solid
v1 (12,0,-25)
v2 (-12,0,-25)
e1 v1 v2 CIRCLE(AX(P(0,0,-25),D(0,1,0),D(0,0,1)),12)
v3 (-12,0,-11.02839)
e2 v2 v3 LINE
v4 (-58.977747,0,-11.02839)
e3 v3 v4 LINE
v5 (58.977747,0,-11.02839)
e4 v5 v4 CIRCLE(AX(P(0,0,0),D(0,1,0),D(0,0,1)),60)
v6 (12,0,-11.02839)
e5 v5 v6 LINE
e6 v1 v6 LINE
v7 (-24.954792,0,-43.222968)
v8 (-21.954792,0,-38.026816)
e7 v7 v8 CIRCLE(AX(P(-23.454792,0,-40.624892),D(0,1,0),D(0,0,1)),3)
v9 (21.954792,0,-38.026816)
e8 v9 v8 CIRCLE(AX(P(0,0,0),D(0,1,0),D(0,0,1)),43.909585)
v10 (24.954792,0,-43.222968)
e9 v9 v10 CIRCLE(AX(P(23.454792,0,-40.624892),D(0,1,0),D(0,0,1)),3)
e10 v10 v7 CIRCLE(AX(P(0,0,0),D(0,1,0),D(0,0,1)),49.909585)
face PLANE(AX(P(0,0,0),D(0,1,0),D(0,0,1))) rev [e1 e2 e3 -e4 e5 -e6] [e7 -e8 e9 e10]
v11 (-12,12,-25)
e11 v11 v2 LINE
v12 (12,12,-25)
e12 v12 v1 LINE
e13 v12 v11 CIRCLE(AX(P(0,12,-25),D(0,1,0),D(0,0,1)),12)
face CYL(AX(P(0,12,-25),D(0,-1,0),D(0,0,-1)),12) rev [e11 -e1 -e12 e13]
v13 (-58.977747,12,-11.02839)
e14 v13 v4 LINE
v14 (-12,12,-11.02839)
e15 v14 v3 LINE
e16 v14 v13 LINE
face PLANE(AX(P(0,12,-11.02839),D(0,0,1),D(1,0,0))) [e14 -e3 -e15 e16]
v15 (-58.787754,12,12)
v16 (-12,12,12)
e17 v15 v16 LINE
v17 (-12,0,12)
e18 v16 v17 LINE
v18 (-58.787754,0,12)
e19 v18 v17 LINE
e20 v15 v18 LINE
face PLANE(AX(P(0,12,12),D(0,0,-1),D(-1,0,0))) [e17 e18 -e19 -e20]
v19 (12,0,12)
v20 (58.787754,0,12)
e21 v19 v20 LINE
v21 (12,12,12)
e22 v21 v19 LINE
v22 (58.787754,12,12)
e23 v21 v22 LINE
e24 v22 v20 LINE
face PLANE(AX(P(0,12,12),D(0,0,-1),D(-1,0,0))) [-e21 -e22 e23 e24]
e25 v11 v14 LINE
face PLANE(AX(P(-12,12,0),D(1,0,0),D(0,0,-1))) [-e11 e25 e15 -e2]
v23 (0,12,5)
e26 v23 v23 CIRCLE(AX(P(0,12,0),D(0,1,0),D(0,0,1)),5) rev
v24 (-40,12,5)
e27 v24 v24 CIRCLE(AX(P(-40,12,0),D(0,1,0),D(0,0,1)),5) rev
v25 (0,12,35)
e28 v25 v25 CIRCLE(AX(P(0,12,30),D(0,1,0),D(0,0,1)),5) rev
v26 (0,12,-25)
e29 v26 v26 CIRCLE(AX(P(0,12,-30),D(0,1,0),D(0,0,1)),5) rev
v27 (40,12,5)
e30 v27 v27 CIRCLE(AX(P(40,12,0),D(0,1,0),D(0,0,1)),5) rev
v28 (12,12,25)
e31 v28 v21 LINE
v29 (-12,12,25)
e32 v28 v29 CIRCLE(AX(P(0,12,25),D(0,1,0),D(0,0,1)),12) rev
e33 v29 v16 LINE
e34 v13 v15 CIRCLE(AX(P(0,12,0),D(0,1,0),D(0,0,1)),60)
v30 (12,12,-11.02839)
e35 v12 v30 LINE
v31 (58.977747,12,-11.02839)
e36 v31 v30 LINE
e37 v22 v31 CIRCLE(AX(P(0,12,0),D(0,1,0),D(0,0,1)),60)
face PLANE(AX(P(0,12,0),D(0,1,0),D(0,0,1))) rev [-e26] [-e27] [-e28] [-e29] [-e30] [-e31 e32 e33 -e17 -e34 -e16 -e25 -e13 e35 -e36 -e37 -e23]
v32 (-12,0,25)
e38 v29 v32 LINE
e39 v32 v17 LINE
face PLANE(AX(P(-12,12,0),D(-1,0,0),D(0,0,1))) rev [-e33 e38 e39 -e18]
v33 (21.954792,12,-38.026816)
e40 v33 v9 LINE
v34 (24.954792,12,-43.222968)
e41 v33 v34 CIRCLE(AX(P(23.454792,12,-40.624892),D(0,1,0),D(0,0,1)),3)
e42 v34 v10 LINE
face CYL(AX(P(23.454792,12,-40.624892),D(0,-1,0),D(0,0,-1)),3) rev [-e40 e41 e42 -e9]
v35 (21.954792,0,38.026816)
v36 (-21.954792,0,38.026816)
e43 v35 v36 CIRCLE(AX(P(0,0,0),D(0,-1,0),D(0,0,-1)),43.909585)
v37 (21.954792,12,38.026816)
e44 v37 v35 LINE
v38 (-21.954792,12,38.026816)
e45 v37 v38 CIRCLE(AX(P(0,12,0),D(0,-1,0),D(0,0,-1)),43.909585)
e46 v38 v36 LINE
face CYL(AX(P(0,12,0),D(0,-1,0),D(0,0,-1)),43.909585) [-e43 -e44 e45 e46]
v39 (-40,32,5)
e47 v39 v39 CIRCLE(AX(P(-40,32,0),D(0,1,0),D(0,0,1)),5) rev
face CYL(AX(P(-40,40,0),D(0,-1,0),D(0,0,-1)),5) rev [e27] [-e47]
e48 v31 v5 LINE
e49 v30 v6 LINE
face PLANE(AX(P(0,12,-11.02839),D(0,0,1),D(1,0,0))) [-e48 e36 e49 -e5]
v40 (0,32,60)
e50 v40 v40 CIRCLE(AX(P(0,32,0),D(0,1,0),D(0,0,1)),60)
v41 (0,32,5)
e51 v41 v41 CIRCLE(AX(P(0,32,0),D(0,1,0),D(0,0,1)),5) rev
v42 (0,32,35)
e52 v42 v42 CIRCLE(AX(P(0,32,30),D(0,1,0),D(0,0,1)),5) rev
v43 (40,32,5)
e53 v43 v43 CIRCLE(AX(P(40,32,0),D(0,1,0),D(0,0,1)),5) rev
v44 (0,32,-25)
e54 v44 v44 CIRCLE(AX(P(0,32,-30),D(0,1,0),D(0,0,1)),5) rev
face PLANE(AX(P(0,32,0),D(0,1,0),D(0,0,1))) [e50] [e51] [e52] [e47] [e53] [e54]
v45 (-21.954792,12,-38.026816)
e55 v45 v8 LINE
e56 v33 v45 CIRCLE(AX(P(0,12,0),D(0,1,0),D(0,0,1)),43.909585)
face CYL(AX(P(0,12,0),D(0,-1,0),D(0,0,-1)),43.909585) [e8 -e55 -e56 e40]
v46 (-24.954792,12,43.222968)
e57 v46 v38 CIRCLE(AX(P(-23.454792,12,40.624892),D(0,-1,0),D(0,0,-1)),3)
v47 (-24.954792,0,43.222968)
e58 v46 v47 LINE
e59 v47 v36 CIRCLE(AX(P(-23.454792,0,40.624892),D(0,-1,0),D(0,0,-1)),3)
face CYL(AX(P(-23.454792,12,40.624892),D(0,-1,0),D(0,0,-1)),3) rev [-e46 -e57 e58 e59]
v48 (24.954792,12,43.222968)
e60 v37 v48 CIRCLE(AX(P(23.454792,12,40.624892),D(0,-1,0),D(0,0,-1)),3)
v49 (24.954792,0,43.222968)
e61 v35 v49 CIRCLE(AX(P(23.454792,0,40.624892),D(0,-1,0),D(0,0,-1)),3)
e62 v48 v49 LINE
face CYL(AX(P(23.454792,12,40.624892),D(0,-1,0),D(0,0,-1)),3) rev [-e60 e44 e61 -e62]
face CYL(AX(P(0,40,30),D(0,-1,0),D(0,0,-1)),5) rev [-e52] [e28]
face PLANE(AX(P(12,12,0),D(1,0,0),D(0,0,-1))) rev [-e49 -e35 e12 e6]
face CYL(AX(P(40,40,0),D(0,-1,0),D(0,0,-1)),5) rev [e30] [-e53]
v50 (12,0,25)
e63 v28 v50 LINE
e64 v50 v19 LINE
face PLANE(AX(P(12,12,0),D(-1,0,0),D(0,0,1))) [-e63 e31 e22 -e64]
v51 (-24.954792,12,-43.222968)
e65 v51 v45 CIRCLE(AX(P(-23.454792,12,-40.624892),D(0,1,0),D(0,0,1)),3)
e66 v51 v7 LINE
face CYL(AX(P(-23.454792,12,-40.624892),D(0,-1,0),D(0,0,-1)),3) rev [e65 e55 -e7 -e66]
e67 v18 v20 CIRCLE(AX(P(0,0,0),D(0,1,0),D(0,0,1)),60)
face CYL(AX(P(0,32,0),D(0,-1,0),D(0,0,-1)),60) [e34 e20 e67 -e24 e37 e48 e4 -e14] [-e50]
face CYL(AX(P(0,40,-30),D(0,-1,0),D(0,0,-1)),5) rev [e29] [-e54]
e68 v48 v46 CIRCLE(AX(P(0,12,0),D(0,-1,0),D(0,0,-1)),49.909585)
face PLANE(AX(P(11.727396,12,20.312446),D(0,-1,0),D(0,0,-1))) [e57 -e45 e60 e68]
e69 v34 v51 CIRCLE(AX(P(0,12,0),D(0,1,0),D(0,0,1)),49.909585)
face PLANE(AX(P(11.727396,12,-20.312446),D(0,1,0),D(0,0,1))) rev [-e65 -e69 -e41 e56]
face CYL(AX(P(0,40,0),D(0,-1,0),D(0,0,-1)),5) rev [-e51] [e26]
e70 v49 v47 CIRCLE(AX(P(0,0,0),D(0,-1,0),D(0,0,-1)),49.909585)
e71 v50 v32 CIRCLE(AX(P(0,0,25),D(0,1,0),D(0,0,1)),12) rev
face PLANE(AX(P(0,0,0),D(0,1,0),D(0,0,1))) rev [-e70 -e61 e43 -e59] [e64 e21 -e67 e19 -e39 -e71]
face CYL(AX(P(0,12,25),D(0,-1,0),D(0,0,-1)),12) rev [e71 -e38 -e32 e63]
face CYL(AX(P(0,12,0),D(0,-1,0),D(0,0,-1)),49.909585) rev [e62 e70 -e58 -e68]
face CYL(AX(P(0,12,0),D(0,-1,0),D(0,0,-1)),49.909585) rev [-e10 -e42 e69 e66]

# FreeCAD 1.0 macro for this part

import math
import FreeCAD as App
import Part
import Sketcher

V = App.Vector

doc = App.newDocument("Part")
params = doc.addObject("Spreadsheet::Sheet", "Params")
for row, (alias, value) in enumerate([
    ("sketch1_diameter", "120 mm"),
    ("pad1_length", "32 mm"),
    ("sketch2_radius", "3 mm"),
    ("pocket1_length", "12 mm"),
    ("sketch3_radius", "3 mm"),
    ("pocket2_length", "12 mm"),
    ("sketch4_diameter", "10 mm"),
    ("sketch4_radius", "60 mm"),
    ("sketch4_radius2", "12 mm"),
    ("sketch4_height", "13 mm"),
    ("pocket3_length", "12 mm"),
    ("sketch5_diameter", "10 mm"),
    ("pocket4_length", "40 mm"),
    ("sketch6_diameter", "10 mm"),
    ("pocket5_length", "40 mm"),
    ("sketch7_diameter", "10 mm"),
    ("pocket6_length", "40 mm"),
    ("sketch8_diameter", "10 mm"),
    ("pocket7_length", "40 mm"),
    ("sketch9_diameter", "10 mm"),
    ("pocket8_length", "40 mm"),
], start=1):
    params.set(f"A{row}", alias)
    params.set(f"B{row}", "=" + value)
    params.setAlias(f"B{row}", alias)

body = doc.addObject("PartDesign::Body", "Body")

sketch1 = doc.addObject("Sketcher::SketchObject", "Sketch")
body.addObject(sketch1)
sketch1.AttachmentSupport = (doc.XZ_Plane, [""])
sketch1.MapMode = "FlatFace"
sketch1.addGeometry(Part.Circle(V(0, 0, 0), V(0, 0, 1), 60), False)
sketch1.addConstraint(Sketcher.Constraint("Coincident", 0, 3, -1, 1))
sketch1.addConstraint(Sketcher.Constraint("Diameter", 0, 120.0))
sketch1.setExpression("Constraints[1]", "Params.sketch1_diameter")
pad1 = doc.addObject("PartDesign::Pad", "Pad")
body.addObject(pad1)
pad1.Profile = sketch1
pad1.setExpression("Length", "Params.pad1_length")
pad1.Reversed = True

sketch2 = doc.addObject("Sketcher::SketchObject", "Sketch001")
body.addObject(sketch2)
sketch2.AttachmentSupport = (doc.XZ_Plane, [""])
sketch2.MapMode = "FlatFace"
sketch2.addGeometry(Part.ArcOfCircle(Part.Circle(V(0, 0, 0), V(0, 0, 1), 49.9), math.radians(-120), math.radians(-60)), False)
sketch2.addGeometry(Part.ArcOfCircle(Part.Circle(V(-23.5, -40.6, 0), V(0, 0, 1), 3), math.radians(60), math.radians(240)), False)
sketch2.addGeometry(Part.ArcOfCircle(Part.Circle(V(0, 0, 0), V(0, 0, 1), 43.9), math.radians(-120), math.radians(-60)), False)
sketch2.addGeometry(Part.ArcOfCircle(Part.Circle(V(23.5, -40.6, 0), V(0, 0, 1), 3), math.radians(-60), math.radians(120)), False)
sketch2.addConstraint(Sketcher.Constraint("Tangent", 0, 1, 1, 2))
sketch2.addConstraint(Sketcher.Constraint("Tangent", 1, 1, 2, 1))
sketch2.addConstraint(Sketcher.Constraint("Tangent", 2, 2, 3, 2))
sketch2.addConstraint(Sketcher.Constraint("Tangent", 3, 1, 0, 2))
sketch2.addConstraint(Sketcher.Constraint("Coincident", 0, 3, -1, 1))
sketch2.addConstraint(Sketcher.Constraint("Coincident", 2, 3, -1, 1))
sketch2.addConstraint(Sketcher.Constraint("Horizontal", 1, 3, 3, 3))
sketch2.addConstraint(Sketcher.Constraint("Radius", 1, 3.0))
sketch2.addConstraint(Sketcher.Constraint("DistanceX", 2, 2, 3, 1, 3.0))
sketch2.addConstraint(Sketcher.Constraint("Radius", 0, 49.909585))
sketch2.setExpression("Constraints[7]", "Params.sketch2_radius")
pocket1 = doc.addObject("PartDesign::Pocket", "Pocket")
body.addObject(pocket1)
pocket1.Profile = sketch2
pocket1.setExpression("Length", "Params.pocket1_length")

sketch3 = doc.addObject("Sketcher::SketchObject", "Sketch002")
body.addObject(sketch3)
sketch3.AttachmentSupport = (doc.XZ_Plane, [""])
sketch3.MapMode = "FlatFace"
sketch3.addGeometry(Part.ArcOfCircle(Part.Circle(V(0, 0, 0), V(0, 0, 1), 49.9), math.radians(60), math.radians(120)), False)
sketch3.addGeometry(Part.ArcOfCircle(Part.Circle(V(23.5, 40.6, 0), V(0, 0, 1), 3), math.radians(-120), math.radians(60)), False)
sketch3.addGeometry(Part.ArcOfCircle(Part.Circle(V(0, 0, 0), V(0, 0, 1), 43.9), math.radians(60), math.radians(120)), False)
sketch3.addGeometry(Part.ArcOfCircle(Part.Circle(V(-23.5, 40.6, 0), V(0, 0, 1), 3), math.radians(120), math.radians(300)), False)
sketch3.addConstraint(Sketcher.Constraint("Tangent", 0, 1, 1, 2))
sketch3.addConstraint(Sketcher.Constraint("Tangent", 1, 1, 2, 1))
sketch3.addConstraint(Sketcher.Constraint("Tangent", 2, 2, 3, 2))
sketch3.addConstraint(Sketcher.Constraint("Tangent", 3, 1, 0, 2))
sketch3.addConstraint(Sketcher.Constraint("Coincident", 0, 3, -1, 1))
sketch3.addConstraint(Sketcher.Constraint("Coincident", 2, 3, -1, 1))
sketch3.addConstraint(Sketcher.Constraint("Horizontal", 1, 3, 3, 3))
sketch3.addConstraint(Sketcher.Constraint("Radius", 1, 3.0))
sketch3.addConstraint(Sketcher.Constraint("DistanceX", 3, 1, 2, 2, 3.0))
sketch3.addConstraint(Sketcher.Constraint("Radius", 0, 49.909585))
sketch3.setExpression("Constraints[7]", "Params.sketch3_radius")
pocket2 = doc.addObject("PartDesign::Pocket", "Pocket001")
body.addObject(pocket2)
pocket2.Profile = sketch3
pocket2.setExpression("Length", "Params.pocket2_length")

sketch4 = doc.addObject("Sketcher::SketchObject", "Sketch003")
body.addObject(sketch4)
sketch4.AttachmentSupport = (doc.XZ_Plane, [""])
sketch4.MapMode = "FlatFace"
sketch4.addGeometry(Part.ArcOfCircle(Part.Circle(V(0, 0, 0), V(0, 0, 1), 60), math.radians(-10.59), math.radians(0)), False)
sketch4.addGeometry(Part.LineSegment(V(58.98, -11.03, 0), V(12, -11.03, 0)), False)
sketch4.addGeometry(Part.LineSegment(V(12, -11.03, 0), V(12, -25, 0)), False)
sketch4.addGeometry(Part.ArcOfCircle(Part.Circle(V(0, -25, 0), V(0, 0, 1), 12), math.radians(180), math.radians(360)), False)
sketch4.addGeometry(Part.LineSegment(V(-12, -25, 0), V(-12, -11.03, 0)), False)
sketch4.addGeometry(Part.LineSegment(V(-12, -11.03, 0), V(-58.98, -11.03, 0)), False)
sketch4.addGeometry(Part.ArcOfCircle(Part.Circle(V(0, 0, 0), V(0, 0, 1), 60), math.radians(168), math.radians(191)), False)
sketch4.addGeometry(Part.LineSegment(V(-58.79, 12, 0), V(-12, 12, 0)), False)
sketch4.addGeometry(Part.LineSegment(V(-12, 12, 0), V(-12, 25, 0)), False)
sketch4.addGeometry(Part.ArcOfCircle(Part.Circle(V(0, 25, 0), V(0, 0, 1), 12), math.radians(0), math.radians(180)), False)
sketch4.addGeometry(Part.LineSegment(V(12, 25, 0), V(12, 12, 0)), False)
sketch4.addGeometry(Part.LineSegment(V(12, 12, 0), V(58.79, 12, 0)), False)
sketch4.addGeometry(Part.ArcOfCircle(Part.Circle(V(0, 0, 0), V(0, 0, 1), 60), math.radians(11.46), math.radians(11.54)), False)
sketch4.addGeometry(Part.ArcOfCircle(Part.Circle(V(0, 0, 0), V(0, 0, 1), 60), math.radians(0), math.radians(11.46)), False)
sketch4.addGeometry(Part.ArcOfCircle(Part.Circle(V(0, 0, 0), V(0, 0, 1), 5), math.radians(0), math.radians(270)), False)
sketch4.addGeometry(Part.ArcOfCircle(Part.Circle(V(0, 0, 0), V(0, 0, 1), 5), math.radians(-90), math.radians(0)), False)
sketch4.addGeometry(Part.Circle(V(0, 30, 0), V(0, 0, 1), 5), False)
sketch4.addGeometry(Part.Circle(V(-40, 0, 0), V(0, 0, 1), 5), False)
sketch4.addGeometry(Part.Circle(V(40, 0, 0), V(0, 0, 1), 5), False)
sketch4.addGeometry(Part.Circle(V(0, -30, 0), V(0, 0, 1), 5), False)
sketch4.addConstraint(Sketcher.Constraint("Coincident", 0, 1, 1, 1))
sketch4.addConstraint(Sketcher.Constraint("Coincident", 1, 2, 2, 1))
sketch4.addConstraint(Sketcher.Constraint("Tangent", 2, 2, 3, 2))
sketch4.addConstraint(Sketcher.Constraint("Tangent", 3, 1, 4, 1))
sketch4.addConstraint(Sketcher.Constraint("Coincident", 4, 2, 5, 1))
sketch4.addConstraint(Sketcher.Constraint("Coincident", 5, 2, 6, 2))
sketch4.addConstraint(Sketcher.Constraint("Coincident", 6, 1, 7, 1))
sketch4.addConstraint(Sketcher.Constraint("Coincident", 7, 2, 8, 1))
sketch4.addConstraint(Sketcher.Constraint("Tangent", 8, 2, 9, 2))
sketch4.addConstraint(Sketcher.Constraint("Tangent", 9, 1, 10, 1))
sketch4.addConstraint(Sketcher.Constraint("Coincident", 10, 2, 11, 1))
sketch4.addConstraint(Sketcher.Constraint("Coincident", 11, 2, 12, 2))
sketch4.addConstraint(Sketcher.Constraint("Tangent", 12, 1, 13, 2))
sketch4.addConstraint(Sketcher.Constraint("Tangent", 13, 1, 0, 2))
sketch4.addConstraint(Sketcher.Constraint("Tangent", 14, 1, 15, 2))
sketch4.addConstraint(Sketcher.Constraint("Coincident", 15, 1, 14, 2))
sketch4.addConstraint(Sketcher.Constraint("Horizontal", 1))
sketch4.addConstraint(Sketcher.Constraint("Vertical", 2))
sketch4.addConstraint(Sketcher.Constraint("Vertical", 4))
sketch4.addConstraint(Sketcher.Constraint("Horizontal", 5))
sketch4.addConstraint(Sketcher.Constraint("Horizontal", 7))
sketch4.addConstraint(Sketcher.Constraint("Vertical", 8))
sketch4.addConstraint(Sketcher.Constraint("Vertical", 10))
sketch4.addConstraint(Sketcher.Constraint("Horizontal", 11))
sketch4.addConstraint(Sketcher.Constraint("Coincident", 0, 3, -1, 1))
sketch4.addConstraint(Sketcher.Constraint("Coincident", 6, 3, -1, 1))
sketch4.addConstraint(Sketcher.Constraint("Coincident", 14, 3, -1, 1))
sketch4.addConstraint(Sketcher.Constraint("Equal", 0, 6))
sketch4.addConstraint(Sketcher.Constraint("Equal", 3, 9))
sketch4.addConstraint(Sketcher.Constraint("Equal", 6, 13))
sketch4.addConstraint(Sketcher.Constraint("Equal", 15, 16))
sketch4.addConstraint(Sketcher.Constraint("Equal", 16, 17))
sketch4.addConstraint(Sketcher.Constraint("Equal", 17, 18))
sketch4.addConstraint(Sketcher.Constraint("Equal", 18, 19))
sketch4.addConstraint(Sketcher.Constraint("Symmetric", 3, 3, 9, 3, -1, 1))
sketch4.addConstraint(Sketcher.Constraint("Symmetric", 17, 3, 18, 3, -1, 1))
sketch4.addConstraint(Sketcher.Constraint("Symmetric", 16, 3, 19, 3, -1, 1))
sketch4.addConstraint(Sketcher.Constraint("Symmetric", 1, 2, 4, 2, -2))
sketch4.addConstraint(Sketcher.Constraint("PointOnObject", 16, 3, -2))
sketch4.addConstraint(Sketcher.Constraint("PointOnObject", 17, 3, -1))
sketch4.addConstraint(Sketcher.Constraint("PointOnObject", 13, 1, -1))
sketch4.addConstraint(Sketcher.Constraint("PointOnObject", 14, 1, -1))
sketch4.addConstraint(Sketcher.Constraint("PointOnObject", 15, 1, -2))
sketch4.addConstraint(Sketcher.Constraint("Horizontal", 7, 2, 10, 2))
sketch4.addConstraint(Sketcher.Constraint("Diameter", 16, 10.0))
sketch4.addConstraint(Sketcher.Constraint("Radius", 0, 60.0))
sketch4.addConstraint(Sketcher.Constraint("Radius", 3, 12.0))
sketch4.addConstraint(Sketcher.Constraint("DistanceY", 8, 1, 8, 2, 13.0))
sketch4.addConstraint(Sketcher.Constraint("DistanceY", 3, 3, -1, 1, 25.0))
sketch4.addConstraint(Sketcher.Constraint("DistanceY", -1, 1, 16, 3, 30.0))
sketch4.addConstraint(Sketcher.Constraint("DistanceX", 17, 3, -1, 1, 40.0))
sketch4.addConstraint(Sketcher.Constraint("Radius", 12, 59.999334))
sketch4.addConstraint(Sketcher.Constraint("DistanceY", 2, 2, 2, 1, 13.97161))
sketch4.addConstraint(Sketcher.Constraint("DistanceY", -1, 1, 12, 1, 11.923499))
sketch4.setExpression("Constraints[44]", "Params.sketch4_diameter")
sketch4.setExpression("Constraints[45]", "Params.sketch4_radius")
sketch4.setExpression("Constraints[46]", "Params.sketch4_radius2")
sketch4.setExpression("Constraints[47]", "Params.sketch4_height")
pocket3 = doc.addObject("PartDesign::Pocket", "Pocket002")
body.addObject(pocket3)
pocket3.Profile = sketch4
pocket3.setExpression("Length", "Params.pocket3_length")

sketch5 = doc.addObject("Sketcher::SketchObject", "Sketch004")
body.addObject(sketch5)
sketch5.AttachmentSupport = (doc.XZ_Plane, [""])
sketch5.MapMode = "FlatFace"
sketch5.addGeometry(Part.Circle(V(0, 30, 0), V(0, 0, 1), 5), False)
sketch5.addConstraint(Sketcher.Constraint("PointOnObject", 0, 3, -2))
sketch5.addConstraint(Sketcher.Constraint("Diameter", 0, 10.0))
sketch5.addConstraint(Sketcher.Constraint("DistanceY", -1, 1, 0, 3, 30.0))
sketch5.setExpression("Constraints[1]", "Params.sketch5_diameter")
pocket4 = doc.addObject("PartDesign::Pocket", "Pocket003")
body.addObject(pocket4)
pocket4.Profile = sketch5
pocket4.setExpression("Length", "Params.pocket4_length")

sketch6 = doc.addObject("Sketcher::SketchObject", "Sketch005")
body.addObject(sketch6)
sketch6.AttachmentSupport = (doc.XZ_Plane, [""])
sketch6.MapMode = "FlatFace"
sketch6.addGeometry(Part.Circle(V(-40, 0, 0), V(0, 0, 1), 5), False)
sketch6.addConstraint(Sketcher.Constraint("PointOnObject", 0, 3, -1))
sketch6.addConstraint(Sketcher.Constraint("Diameter", 0, 10.0))
sketch6.addConstraint(Sketcher.Constraint("DistanceX", 0, 3, -1, 1, 40.0))
sketch6.setExpression("Constraints[1]", "Params.sketch6_diameter")
pocket5 = doc.addObject("PartDesign::Pocket", "Pocket004")
body.addObject(pocket5)
pocket5.Profile = sketch6
pocket5.setExpression("Length", "Params.pocket5_length")

sketch7 = doc.addObject("Sketcher::SketchObject", "Sketch006")
body.addObject(sketch7)
sketch7.AttachmentSupport = (doc.XZ_Plane, [""])
sketch7.MapMode = "FlatFace"
sketch7.addGeometry(Part.Circle(V(0, 0, 0), V(0, 0, 1), 5), False)
sketch7.addConstraint(Sketcher.Constraint("Coincident", 0, 3, -1, 1))
sketch7.addConstraint(Sketcher.Constraint("Diameter", 0, 10.0))
sketch7.setExpression("Constraints[1]", "Params.sketch7_diameter")
pocket6 = doc.addObject("PartDesign::Pocket", "Pocket005")
body.addObject(pocket6)
pocket6.Profile = sketch7
pocket6.setExpression("Length", "Params.pocket6_length")

sketch8 = doc.addObject("Sketcher::SketchObject", "Sketch007")
body.addObject(sketch8)
sketch8.AttachmentSupport = (doc.XZ_Plane, [""])
sketch8.MapMode = "FlatFace"
sketch8.addGeometry(Part.Circle(V(40, 0, 0), V(0, 0, 1), 5), False)
sketch8.addConstraint(Sketcher.Constraint("PointOnObject", 0, 3, -1))
sketch8.addConstraint(Sketcher.Constraint("Diameter", 0, 10.0))
sketch8.addConstraint(Sketcher.Constraint("DistanceX", -1, 1, 0, 3, 40.0))
sketch8.setExpression("Constraints[1]", "Params.sketch8_diameter")
pocket7 = doc.addObject("PartDesign::Pocket", "Pocket006")
body.addObject(pocket7)
pocket7.Profile = sketch8
pocket7.setExpression("Length", "Params.pocket7_length")

sketch9 = doc.addObject("Sketcher::SketchObject", "Sketch008")
body.addObject(sketch9)
sketch9.AttachmentSupport = (doc.XZ_Plane, [""])
sketch9.MapMode = "FlatFace"
sketch9.addGeometry(Part.Circle(V(0, -30, 0), V(0, 0, 1), 5), False)
sketch9.addConstraint(Sketcher.Constraint("PointOnObject", 0, 3, -2))
sketch9.addConstraint(Sketcher.Constraint("Diameter", 0, 10.0))
sketch9.addConstraint(Sketcher.Constraint("DistanceY", 0, 3, -1, 1, 30.0))
sketch9.setExpression("Constraints[1]", "Params.sketch9_diameter")
pocket8 = doc.addObject("PartDesign::Pocket", "Pocket007")
body.addObject(pocket8)
pocket8.Profile = sketch9
pocket8.setExpression("Length", "Params.pocket8_length")

doc.recompute()
